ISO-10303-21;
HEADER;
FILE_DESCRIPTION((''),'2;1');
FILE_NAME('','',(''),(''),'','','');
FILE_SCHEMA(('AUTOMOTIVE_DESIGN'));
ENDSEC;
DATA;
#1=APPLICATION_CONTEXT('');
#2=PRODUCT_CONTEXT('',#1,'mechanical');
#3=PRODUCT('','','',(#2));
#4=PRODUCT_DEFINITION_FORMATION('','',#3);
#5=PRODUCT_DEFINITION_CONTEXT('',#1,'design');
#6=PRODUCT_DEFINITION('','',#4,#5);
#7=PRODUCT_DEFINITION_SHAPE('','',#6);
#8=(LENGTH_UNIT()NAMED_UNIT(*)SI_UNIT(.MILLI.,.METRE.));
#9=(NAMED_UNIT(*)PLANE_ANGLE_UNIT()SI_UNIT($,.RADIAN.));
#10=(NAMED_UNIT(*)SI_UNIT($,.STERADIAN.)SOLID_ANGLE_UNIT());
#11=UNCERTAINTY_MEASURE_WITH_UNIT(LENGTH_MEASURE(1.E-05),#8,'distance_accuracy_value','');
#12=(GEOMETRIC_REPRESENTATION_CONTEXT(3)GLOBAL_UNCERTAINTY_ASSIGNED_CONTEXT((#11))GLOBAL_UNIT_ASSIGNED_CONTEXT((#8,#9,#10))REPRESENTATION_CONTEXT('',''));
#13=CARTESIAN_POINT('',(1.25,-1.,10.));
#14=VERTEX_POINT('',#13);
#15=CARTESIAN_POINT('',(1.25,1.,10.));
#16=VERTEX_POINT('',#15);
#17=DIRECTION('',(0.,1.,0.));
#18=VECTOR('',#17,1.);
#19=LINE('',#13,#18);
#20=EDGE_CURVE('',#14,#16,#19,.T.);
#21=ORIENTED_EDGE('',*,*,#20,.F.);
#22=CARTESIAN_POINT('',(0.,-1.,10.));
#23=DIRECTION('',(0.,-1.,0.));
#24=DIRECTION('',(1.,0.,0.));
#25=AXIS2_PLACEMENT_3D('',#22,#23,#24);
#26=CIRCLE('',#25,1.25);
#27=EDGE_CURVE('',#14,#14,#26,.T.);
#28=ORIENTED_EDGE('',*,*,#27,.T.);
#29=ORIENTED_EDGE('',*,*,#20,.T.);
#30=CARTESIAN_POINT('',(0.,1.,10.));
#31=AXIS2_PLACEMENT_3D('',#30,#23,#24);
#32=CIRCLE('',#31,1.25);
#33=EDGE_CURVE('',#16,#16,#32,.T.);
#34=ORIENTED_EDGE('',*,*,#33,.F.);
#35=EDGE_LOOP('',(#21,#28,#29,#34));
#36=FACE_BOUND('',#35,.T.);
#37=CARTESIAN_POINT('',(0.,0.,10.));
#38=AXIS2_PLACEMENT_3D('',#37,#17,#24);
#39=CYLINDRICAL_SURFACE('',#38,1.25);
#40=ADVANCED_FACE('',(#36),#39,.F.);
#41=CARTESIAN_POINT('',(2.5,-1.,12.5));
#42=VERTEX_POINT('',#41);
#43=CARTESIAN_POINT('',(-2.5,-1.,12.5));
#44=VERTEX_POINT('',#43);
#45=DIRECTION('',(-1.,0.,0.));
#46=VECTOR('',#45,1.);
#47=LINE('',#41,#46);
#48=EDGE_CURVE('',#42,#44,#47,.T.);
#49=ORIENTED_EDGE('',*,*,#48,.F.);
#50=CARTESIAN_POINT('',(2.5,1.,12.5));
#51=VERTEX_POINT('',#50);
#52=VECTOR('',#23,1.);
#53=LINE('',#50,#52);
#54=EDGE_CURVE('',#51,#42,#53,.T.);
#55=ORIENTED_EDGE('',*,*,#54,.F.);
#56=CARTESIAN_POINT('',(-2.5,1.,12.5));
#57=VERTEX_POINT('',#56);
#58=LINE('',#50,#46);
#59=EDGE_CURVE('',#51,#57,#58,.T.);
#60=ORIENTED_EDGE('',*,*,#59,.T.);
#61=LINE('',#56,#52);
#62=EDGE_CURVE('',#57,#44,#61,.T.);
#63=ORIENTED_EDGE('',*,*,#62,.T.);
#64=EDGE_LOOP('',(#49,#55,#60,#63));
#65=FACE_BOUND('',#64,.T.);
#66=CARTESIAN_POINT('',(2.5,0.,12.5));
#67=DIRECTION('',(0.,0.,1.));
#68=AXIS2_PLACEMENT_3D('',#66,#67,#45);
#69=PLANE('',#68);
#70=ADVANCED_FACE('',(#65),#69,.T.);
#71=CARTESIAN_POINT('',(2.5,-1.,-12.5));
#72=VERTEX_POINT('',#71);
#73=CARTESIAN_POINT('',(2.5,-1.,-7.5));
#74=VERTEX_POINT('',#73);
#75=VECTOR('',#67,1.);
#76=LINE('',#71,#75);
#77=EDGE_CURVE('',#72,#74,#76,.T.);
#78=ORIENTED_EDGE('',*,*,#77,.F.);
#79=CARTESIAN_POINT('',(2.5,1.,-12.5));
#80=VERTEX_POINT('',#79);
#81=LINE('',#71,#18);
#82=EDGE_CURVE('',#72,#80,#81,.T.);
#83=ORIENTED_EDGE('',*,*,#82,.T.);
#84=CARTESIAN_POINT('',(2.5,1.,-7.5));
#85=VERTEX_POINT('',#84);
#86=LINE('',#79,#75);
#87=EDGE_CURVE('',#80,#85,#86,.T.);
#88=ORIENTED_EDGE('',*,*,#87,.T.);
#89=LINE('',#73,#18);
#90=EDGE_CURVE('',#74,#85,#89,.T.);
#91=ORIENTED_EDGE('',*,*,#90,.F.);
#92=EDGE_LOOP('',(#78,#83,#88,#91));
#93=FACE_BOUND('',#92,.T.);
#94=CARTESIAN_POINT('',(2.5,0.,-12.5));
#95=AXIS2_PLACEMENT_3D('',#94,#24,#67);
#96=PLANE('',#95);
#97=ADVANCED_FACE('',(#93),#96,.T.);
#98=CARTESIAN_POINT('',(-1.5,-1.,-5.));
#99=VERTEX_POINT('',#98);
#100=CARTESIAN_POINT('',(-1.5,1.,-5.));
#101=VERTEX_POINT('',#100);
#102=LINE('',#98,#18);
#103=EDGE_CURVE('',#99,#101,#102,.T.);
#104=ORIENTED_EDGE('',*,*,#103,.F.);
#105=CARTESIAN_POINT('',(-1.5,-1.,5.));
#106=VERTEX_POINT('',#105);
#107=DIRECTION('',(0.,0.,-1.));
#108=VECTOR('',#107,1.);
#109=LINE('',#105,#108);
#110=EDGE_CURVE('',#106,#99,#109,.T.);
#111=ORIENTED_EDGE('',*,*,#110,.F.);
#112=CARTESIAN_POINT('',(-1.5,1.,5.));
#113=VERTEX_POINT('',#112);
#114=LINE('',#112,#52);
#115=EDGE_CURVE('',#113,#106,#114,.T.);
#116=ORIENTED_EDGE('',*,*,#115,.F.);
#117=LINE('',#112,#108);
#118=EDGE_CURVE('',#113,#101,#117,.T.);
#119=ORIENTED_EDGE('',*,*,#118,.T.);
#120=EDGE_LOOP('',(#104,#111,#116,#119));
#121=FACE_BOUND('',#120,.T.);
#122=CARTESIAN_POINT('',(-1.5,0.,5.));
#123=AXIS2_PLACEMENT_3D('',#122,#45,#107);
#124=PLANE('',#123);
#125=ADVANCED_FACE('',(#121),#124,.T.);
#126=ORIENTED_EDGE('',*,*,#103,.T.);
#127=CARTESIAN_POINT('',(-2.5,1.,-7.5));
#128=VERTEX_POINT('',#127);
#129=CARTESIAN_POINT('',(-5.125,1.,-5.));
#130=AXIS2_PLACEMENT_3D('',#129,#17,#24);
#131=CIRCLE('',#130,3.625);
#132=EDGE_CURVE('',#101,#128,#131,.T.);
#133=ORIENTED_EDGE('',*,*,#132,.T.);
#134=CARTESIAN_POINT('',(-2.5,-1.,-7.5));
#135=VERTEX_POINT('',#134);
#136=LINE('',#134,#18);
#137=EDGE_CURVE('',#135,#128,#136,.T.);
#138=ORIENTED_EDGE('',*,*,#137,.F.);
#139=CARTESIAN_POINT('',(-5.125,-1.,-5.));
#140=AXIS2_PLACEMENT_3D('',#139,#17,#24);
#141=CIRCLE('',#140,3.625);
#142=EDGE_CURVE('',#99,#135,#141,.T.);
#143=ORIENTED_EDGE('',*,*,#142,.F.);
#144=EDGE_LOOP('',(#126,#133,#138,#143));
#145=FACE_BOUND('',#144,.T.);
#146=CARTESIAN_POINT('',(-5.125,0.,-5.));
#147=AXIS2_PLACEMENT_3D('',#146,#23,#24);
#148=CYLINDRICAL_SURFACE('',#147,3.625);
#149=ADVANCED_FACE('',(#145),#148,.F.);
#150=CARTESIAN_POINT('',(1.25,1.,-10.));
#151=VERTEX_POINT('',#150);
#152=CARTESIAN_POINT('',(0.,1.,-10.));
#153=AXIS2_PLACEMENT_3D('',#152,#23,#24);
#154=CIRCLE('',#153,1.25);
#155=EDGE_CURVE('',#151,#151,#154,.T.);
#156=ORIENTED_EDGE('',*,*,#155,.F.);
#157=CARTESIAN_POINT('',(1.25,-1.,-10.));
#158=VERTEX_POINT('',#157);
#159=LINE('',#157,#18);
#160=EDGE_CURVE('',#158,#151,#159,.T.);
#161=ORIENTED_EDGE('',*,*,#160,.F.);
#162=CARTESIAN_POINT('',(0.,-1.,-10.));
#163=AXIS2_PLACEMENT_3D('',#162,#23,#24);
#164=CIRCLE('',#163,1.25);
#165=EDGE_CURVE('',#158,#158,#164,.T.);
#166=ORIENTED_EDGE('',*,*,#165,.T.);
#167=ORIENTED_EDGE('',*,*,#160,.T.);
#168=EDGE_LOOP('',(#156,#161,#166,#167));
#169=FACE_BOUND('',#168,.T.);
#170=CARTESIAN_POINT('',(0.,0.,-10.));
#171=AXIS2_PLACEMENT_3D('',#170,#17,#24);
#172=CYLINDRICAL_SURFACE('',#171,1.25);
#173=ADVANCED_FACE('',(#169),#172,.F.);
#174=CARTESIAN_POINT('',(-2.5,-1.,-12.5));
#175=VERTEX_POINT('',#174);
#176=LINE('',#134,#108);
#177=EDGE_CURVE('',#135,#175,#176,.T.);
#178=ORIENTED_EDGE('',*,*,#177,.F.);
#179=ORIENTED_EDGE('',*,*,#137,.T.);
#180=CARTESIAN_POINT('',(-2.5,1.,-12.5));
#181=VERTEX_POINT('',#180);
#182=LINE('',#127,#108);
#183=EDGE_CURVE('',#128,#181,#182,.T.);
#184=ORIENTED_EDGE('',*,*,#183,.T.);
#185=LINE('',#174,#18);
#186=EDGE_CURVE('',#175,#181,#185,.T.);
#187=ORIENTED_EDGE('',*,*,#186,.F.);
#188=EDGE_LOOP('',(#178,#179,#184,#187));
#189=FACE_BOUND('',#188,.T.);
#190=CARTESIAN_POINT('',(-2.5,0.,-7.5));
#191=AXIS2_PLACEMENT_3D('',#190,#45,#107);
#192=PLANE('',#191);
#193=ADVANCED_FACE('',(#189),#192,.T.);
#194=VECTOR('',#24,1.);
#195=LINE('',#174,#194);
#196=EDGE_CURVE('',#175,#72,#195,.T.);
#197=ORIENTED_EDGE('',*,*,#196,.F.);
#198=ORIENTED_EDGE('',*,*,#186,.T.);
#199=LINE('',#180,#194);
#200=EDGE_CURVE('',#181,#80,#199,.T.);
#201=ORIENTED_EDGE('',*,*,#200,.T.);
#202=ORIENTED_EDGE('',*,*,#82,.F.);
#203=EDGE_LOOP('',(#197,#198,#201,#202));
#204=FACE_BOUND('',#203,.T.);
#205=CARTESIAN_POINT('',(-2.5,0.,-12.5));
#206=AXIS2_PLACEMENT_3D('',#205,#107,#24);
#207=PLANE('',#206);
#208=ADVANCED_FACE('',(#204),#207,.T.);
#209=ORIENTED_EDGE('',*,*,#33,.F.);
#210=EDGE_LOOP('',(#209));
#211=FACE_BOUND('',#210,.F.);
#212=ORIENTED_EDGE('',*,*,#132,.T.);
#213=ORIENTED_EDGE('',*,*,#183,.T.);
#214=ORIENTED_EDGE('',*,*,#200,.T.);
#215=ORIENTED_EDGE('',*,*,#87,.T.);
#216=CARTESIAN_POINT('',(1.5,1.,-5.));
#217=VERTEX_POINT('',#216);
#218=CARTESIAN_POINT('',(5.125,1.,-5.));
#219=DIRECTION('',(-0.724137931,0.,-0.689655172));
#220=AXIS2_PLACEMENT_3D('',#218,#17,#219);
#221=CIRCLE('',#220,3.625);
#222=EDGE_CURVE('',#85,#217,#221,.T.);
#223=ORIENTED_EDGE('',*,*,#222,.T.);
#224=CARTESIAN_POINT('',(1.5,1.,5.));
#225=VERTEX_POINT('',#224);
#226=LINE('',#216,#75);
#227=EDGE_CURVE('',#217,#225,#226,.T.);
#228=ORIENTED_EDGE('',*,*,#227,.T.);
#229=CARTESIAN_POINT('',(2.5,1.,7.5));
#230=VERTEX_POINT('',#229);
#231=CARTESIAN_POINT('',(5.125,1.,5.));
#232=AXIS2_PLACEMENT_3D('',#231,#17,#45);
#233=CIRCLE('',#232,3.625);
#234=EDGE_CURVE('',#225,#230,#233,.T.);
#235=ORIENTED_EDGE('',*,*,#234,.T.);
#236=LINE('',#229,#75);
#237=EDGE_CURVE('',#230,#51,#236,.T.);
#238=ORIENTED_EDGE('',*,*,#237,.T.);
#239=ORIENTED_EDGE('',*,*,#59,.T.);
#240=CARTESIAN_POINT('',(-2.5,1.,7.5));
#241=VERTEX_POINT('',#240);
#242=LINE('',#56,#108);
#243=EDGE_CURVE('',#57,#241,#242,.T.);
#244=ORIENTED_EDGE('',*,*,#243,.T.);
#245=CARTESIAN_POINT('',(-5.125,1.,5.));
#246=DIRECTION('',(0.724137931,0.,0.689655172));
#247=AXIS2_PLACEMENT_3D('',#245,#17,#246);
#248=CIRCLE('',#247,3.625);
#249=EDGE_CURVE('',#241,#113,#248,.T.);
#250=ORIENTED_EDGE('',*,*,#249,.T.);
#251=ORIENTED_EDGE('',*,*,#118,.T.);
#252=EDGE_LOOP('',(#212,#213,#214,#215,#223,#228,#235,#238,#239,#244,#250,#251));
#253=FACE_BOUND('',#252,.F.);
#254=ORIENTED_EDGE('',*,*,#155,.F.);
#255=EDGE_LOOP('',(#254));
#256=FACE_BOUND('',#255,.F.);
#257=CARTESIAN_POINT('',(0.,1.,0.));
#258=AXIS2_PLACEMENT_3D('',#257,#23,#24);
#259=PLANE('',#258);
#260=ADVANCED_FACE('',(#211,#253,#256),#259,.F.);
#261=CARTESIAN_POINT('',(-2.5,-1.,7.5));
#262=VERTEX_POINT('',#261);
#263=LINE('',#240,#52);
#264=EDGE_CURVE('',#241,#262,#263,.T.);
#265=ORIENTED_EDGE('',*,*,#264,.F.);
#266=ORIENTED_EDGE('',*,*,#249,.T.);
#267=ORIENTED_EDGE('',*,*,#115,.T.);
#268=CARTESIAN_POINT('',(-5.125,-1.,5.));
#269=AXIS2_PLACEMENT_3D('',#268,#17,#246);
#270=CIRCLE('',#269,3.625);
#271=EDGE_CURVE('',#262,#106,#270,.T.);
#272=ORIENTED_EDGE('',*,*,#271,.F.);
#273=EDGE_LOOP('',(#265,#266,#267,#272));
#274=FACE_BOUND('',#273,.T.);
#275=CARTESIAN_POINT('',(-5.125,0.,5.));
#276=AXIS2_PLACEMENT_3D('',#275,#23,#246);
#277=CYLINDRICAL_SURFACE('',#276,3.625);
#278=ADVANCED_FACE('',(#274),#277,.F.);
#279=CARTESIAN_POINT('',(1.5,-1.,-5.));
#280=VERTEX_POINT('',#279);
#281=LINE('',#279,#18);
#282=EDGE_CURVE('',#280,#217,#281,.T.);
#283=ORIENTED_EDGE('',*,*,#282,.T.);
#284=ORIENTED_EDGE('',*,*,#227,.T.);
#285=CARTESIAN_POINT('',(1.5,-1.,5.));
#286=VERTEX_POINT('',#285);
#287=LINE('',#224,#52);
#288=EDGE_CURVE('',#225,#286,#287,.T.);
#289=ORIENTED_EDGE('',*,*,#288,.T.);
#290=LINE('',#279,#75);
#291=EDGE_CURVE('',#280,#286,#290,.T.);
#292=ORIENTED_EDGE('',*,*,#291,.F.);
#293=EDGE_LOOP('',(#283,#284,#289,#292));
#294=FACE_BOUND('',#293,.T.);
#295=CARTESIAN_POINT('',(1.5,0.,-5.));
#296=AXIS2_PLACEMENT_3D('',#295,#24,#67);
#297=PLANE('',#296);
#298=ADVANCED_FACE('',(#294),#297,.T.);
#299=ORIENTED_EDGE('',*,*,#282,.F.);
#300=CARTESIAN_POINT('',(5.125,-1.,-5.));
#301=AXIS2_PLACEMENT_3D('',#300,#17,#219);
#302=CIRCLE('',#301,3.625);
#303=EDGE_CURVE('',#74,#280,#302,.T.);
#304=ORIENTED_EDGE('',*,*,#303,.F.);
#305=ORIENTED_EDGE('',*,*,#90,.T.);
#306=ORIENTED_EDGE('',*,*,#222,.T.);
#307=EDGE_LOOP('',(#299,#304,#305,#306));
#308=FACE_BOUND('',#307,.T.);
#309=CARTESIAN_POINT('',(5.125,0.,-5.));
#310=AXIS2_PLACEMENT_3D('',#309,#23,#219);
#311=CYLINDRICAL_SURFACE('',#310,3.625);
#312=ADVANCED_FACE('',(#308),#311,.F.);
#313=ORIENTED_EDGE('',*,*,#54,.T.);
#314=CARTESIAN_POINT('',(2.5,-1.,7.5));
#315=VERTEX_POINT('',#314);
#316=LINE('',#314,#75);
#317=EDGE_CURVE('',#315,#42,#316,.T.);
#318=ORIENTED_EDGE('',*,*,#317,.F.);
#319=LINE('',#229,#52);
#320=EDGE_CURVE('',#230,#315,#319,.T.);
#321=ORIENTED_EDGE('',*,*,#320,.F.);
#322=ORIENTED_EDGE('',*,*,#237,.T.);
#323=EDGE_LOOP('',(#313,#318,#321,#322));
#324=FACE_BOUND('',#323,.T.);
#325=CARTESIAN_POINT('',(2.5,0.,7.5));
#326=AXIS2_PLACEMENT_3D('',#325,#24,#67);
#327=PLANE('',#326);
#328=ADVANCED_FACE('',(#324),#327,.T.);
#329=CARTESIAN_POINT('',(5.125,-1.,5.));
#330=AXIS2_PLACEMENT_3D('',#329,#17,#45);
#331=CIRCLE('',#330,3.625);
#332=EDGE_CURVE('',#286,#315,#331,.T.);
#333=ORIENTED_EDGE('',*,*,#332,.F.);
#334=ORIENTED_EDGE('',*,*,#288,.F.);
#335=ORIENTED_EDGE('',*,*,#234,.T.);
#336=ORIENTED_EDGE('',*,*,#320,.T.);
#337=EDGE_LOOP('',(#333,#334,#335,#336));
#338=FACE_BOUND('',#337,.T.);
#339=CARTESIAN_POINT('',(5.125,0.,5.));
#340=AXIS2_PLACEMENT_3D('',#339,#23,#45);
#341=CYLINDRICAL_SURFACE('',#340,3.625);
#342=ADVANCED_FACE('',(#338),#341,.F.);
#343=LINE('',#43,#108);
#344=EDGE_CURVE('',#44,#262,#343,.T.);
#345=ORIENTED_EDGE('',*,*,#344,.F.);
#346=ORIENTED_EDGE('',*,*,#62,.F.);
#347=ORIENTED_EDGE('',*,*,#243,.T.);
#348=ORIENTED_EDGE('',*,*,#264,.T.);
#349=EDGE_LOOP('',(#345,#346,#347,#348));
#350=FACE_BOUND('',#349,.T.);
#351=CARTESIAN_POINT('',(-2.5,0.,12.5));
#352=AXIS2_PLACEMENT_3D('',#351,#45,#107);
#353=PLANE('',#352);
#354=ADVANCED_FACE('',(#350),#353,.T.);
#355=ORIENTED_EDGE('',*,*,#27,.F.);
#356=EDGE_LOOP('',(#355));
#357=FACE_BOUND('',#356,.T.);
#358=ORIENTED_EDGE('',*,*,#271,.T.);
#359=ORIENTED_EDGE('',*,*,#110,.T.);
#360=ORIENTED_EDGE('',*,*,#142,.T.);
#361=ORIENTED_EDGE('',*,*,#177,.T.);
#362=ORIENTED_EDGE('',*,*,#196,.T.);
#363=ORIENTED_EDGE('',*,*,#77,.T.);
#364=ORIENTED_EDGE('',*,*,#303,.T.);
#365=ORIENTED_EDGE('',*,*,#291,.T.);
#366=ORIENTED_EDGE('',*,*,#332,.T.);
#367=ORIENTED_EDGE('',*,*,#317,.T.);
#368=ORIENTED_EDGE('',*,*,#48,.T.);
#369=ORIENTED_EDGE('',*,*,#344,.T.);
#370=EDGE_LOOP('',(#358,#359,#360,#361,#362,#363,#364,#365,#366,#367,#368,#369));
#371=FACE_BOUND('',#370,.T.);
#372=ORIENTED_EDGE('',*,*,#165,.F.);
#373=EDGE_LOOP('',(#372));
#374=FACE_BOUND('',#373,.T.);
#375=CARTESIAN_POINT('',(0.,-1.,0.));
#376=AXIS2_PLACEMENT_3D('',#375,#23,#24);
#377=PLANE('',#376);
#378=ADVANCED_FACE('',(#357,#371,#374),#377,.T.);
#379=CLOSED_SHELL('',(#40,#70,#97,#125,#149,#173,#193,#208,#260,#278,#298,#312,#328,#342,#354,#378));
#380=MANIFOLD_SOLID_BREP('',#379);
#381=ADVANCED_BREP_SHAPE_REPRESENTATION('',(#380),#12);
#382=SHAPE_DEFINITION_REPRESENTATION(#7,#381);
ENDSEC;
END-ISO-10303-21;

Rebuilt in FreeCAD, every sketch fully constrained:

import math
import FreeCAD as App
import Part
import Sketcher

doc = App.newDocument("Part")
body = doc.addObject("PartDesign::Body", "Body")

# Sketch on XZ plane
sketch1 = body.newObject("Sketcher::SketchObject", "Sketch")
sketch1.AttachmentSupport = (doc.getObject("XZ_Plane"), [""])
sketch1.MapMode = "FlatFace"
sketch1.addGeometry([
    Part.LineSegment(App.Vector(1.5, -5, 0), App.Vector(1.5, 5, 0)),  # 0
    Part.ArcOfCircle(Part.Circle(App.Vector(5.1, 5, 0), App.Vector(0, 0, 1), 3.6), math.radians(136), math.radians(180)),  # 1
    Part.LineSegment(App.Vector(2.5, 7.5, 0), App.Vector(2.5, 12.5, 0)),  # 2
    Part.LineSegment(App.Vector(2.5, 12.5, 0), App.Vector(-2.5, 12.5, 0)),  # 3
    Part.LineSegment(App.Vector(-2.5, 12.5, 0), App.Vector(-2.5, 7.5, 0)),  # 4
    Part.ArcOfCircle(Part.Circle(App.Vector(-5.1, 5, 0), App.Vector(0, 0, 1), 3.6), math.radians(0), math.radians(44)),  # 5
    Part.LineSegment(App.Vector(-1.5, 5, 0), App.Vector(-1.5, -5, 0)),  # 6
    Part.ArcOfCircle(Part.Circle(App.Vector(-5.1, -5, 0), App.Vector(0, 0, 1), 3.6), math.radians(-44), math.radians(0)),  # 7
    Part.LineSegment(App.Vector(-2.5, -7.5, 0), App.Vector(-2.5, -12.5, 0)),  # 8
    Part.LineSegment(App.Vector(-2.5, -12.5, 0), App.Vector(2.5, -12.5, 0)),  # 9
    Part.LineSegment(App.Vector(2.5, -12.5, 0), App.Vector(2.5, -7.5, 0)),  # 10
    Part.ArcOfCircle(Part.Circle(App.Vector(5.1, -5, 0), App.Vector(0, 0, 1), 3.6), math.radians(180), math.radians(224)),  # 11
    Part.Circle(App.Vector(0, -10, 0), App.Vector(0, 0, 1), 1.2),  # 12
    Part.Circle(App.Vector(0, 10, 0), App.Vector(0, 0, 1), 1.2),  # 13
], False)
sketch1.addConstraint([
    Sketcher.Constraint("Tangent", 0, 2, 1, 2),
    Sketcher.Constraint("Coincident", 1, 1, 2, 1),
    Sketcher.Constraint("Coincident", 2, 2, 3, 1),
    Sketcher.Constraint("Coincident", 3, 2, 4, 1),
    Sketcher.Constraint("Coincident", 4, 2, 5, 2),
    Sketcher.Constraint("Tangent", 5, 1, 6, 1),
    Sketcher.Constraint("Tangent", 6, 2, 7, 2),
    Sketcher.Constraint("Coincident", 7, 1, 8, 1),
    Sketcher.Constraint("Coincident", 8, 2, 9, 1),
    Sketcher.Constraint("Coincident", 9, 2, 10, 1),
    Sketcher.Constraint("Coincident", 10, 2, 11, 2),
    Sketcher.Constraint("Tangent", 11, 1, 0, 1),
    Sketcher.Constraint("Vertical", 0),
    Sketcher.Constraint("Vertical", 2),
    Sketcher.Constraint("Horizontal", 3),
    Sketcher.Constraint("Vertical", 4),
    Sketcher.Constraint("Vertical", 6),
    Sketcher.Constraint("Vertical", 8),
    Sketcher.Constraint("Horizontal", 9),
    Sketcher.Constraint("Vertical", 10),
    Sketcher.Constraint("Equal", 1, 5),
    Sketcher.Constraint("Equal", 5, 7),
    Sketcher.Constraint("Equal", 7, 11),
    Sketcher.Constraint("Equal", 12, 13),
    Sketcher.Constraint("Symmetric", 1, 3, 7, 3, -1, 1),
    Sketcher.Constraint("Symmetric", 12, 3, 13, 3, -1, 1),
    Sketcher.Constraint("Symmetric", 2, 2, 8, 2, -1, 1),
    Sketcher.Constraint("Symmetric", 4, 2, 10, 2, -1, 1),
    Sketcher.Constraint("Symmetric", 1, 1, 4, 2, -2),
    Sketcher.Constraint("PointOnObject", 12, 3, -2),
    Sketcher.Constraint("Equal", 9, 2),
    Sketcher.Constraint("Diameter", 12, 2.5),
    Sketcher.Constraint("DistanceX", 3, 2, 3, 1, 5.0),
    Sketcher.Constraint("DistanceY", 0, 1, 0, 2, 10.0),
    Sketcher.Constraint("DistanceY", 12, 3, -1, 1, 10.0),
    Sketcher.Constraint("Radius", 1, 3.625),
    Sketcher.Constraint("DistanceX", 0, 2, 1, 1, 1.0),
])
pad1 = body.newObject("PartDesign::Pad", "Pad")
pad1.Profile = sketch1
pad1.Length = 2
pad1.Midplane = True

doc.recompute()
